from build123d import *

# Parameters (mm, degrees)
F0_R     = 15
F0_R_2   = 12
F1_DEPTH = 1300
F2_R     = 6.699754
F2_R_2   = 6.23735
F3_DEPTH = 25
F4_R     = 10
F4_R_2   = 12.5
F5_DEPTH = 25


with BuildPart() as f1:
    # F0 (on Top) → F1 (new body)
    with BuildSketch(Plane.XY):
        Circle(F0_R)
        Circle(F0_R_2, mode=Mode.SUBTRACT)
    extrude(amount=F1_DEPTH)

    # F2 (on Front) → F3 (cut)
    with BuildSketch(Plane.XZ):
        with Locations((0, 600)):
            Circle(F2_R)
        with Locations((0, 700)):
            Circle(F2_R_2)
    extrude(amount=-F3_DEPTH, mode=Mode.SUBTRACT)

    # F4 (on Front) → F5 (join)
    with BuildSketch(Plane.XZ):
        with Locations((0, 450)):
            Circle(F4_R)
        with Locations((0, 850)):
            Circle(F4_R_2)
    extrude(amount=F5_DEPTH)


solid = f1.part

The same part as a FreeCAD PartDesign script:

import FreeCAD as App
import Part
import Sketcher
from FreeCAD import Vector
Q = App.Units.Quantity

doc = App.newDocument("Part")
body = doc.addObject("PartDesign::Body", "Body")

# Sketch on XY plane
sketch1 = body.newObject("Sketcher::SketchObject", "Sketch")
sketch1.AttachmentSupport = (doc.getObject("XY_Plane"), [""])
sketch1.MapMode = "FlatFace"
sketch1.addGeometry(Part.Circle(Vector(0, 0, 0), Vector(0, 0, 1), 15), False)
sketch1.addGeometry(Part.Circle(Vector(0, 0, 0), Vector(0, 0, 1), 12), False)
sketch1.addConstraint(Sketcher.Constraint("Coincident", 0, 3, -1, 1))
sketch1.addConstraint(Sketcher.Constraint("Coincident", 1, 3, -1, 1))
sketch1.addConstraint(Sketcher.Constraint("Diameter", 0, Q("30 mm")))
sketch1.addConstraint(Sketcher.Constraint("Diameter", 1, Q("24 mm")))
pad1 = body.newObject("PartDesign::Pad", "Pad")
pad1.Profile = sketch1
pad1.Length = 1300

# Sketch on XZ plane
sketch2 = body.newObject("Sketcher::SketchObject", "Sketch001")
sketch2.AttachmentSupport = (doc.getObject("XZ_Plane"), [""])
sketch2.MapMode = "FlatFace"
sketch2.addGeometry(Part.Circle(Vector(0, 600, 0), Vector(0, 0, 1), 7), False)
sketch2.addGeometry(Part.Circle(Vector(0, 700, 0), Vector(0, 0, 1), 6), False)
sketch2.addConstraint(Sketcher.Constraint("PointOnObject", 0, 3, -2))
sketch2.addConstraint(Sketcher.Constraint("PointOnObject", 1, 3, -2))
sketch2.addConstraint(Sketcher.Constraint("DistanceY", -1, 1, 0, 3, Q("600 mm")))
sketch2.addConstraint(Sketcher.Constraint("DistanceY", -1, 1, 1, 3, Q("700 mm")))
sketch2.addConstraint(Sketcher.Constraint("Diameter", 1, Q("12.4747 mm")))
sketch2.addConstraint(Sketcher.Constraint("Diameter", 0, Q("13.399508 mm")))
pocket1 = body.newObject("PartDesign::Pocket", "Pocket")
pocket1.Profile = sketch2
pocket1.Length = 25

# Sketch on XZ plane
sketch3 = body.newObject("Sketcher::SketchObject", "Sketch002")
sketch3.AttachmentSupport = (doc.getObject("XZ_Plane"), [""])
sketch3.MapMode = "FlatFace"
sketch3.addGeometry(Part.Circle(Vector(0, 450, 0), Vector(0, 0, 1), 10), False)
sketch3.addGeometry(Part.Circle(Vector(0, 850, 0), Vector(0, 0, 1), 12), False)
sketch3.addConstraint(Sketcher.Constraint("PointOnObject", 0, 3, -2))
sketch3.addConstraint(Sketcher.Constraint("PointOnObject", 1, 3, -2))
sketch3.addConstraint(Sketcher.Constraint("Diameter", 0, Q("20 mm")))
sketch3.addConstraint(Sketcher.Constraint("Diameter", 1, Q("25 mm")))
sketch3.addConstraint(Sketcher.Constraint("DistanceY", -1, 1, 0, 3, Q("450 mm")))
sketch3.addConstraint(Sketcher.Constraint("DistanceY", -1, 1, 1, 3, Q("850 mm")))
pad2 = body.newObject("PartDesign::Pad", "Pad001")
pad2.Profile = sketch3
pad2.Length = 25

doc.recompute()
